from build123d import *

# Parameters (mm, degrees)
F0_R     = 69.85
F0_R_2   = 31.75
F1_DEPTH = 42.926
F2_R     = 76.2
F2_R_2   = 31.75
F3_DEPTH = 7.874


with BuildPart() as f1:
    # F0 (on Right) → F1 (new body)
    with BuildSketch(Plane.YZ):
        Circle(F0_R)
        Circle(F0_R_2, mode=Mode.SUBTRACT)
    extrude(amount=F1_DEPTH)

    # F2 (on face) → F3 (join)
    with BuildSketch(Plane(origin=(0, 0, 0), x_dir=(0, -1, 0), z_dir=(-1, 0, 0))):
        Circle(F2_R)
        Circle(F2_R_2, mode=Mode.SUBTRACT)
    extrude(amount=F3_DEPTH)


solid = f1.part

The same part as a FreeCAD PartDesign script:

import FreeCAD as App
import Part
import Sketcher
Q = App.Units.Quantity

doc = App.newDocument("Part")
body = doc.addObject("PartDesign::Body", "Body")

# Sketch on YZ plane
sketch1 = body.newObject("Sketcher::SketchObject", "Sketch")
sketch1.AttachmentSupport = (doc.getObject("YZ_Plane"), [""])
sketch1.MapMode = "FlatFace"
sketch1.addGeometry([
    Part.Circle(App.Vector(0, 0, 0), App.Vector(0, 0, 1), 70),
    Part.Circle(App.Vector(0, 0, 0), App.Vector(0, 0, 1), 32),
], False)
sketch1.addConstraint([
    Sketcher.Constraint("Coincident", 0, 3, -1, 1),
    Sketcher.Constraint("Coincident", 1, 3, -1, 1),
    Sketcher.Constraint("Diameter", 0, Q("5.5 in")),
    Sketcher.Constraint("Diameter", 1, Q("2.5 in")),
])
pad1 = body.newObject("PartDesign::Pad", "Pad")
pad1.Profile = sketch1
pad1.Length = Q("1.69 in")

# Sketch on YZ plane
sketch2 = body.newObject("Sketcher::SketchObject", "Sketch001")
sketch2.AttachmentSupport = (doc.getObject("YZ_Plane"), [""])
sketch2.MapMode = "FlatFace"
sketch2.addGeometry([
    Part.Circle(App.Vector(0, 0, 0), App.Vector(0, 0, 1), 76),
    Part.Circle(App.Vector(0, 0, 0), App.Vector(0, 0, 1), 32),
], False)
sketch2.addConstraint([
    Sketcher.Constraint("Coincident", 0, 3, -1, 1),
    Sketcher.Constraint("Coincident", 1, 3, -1, 1),
    Sketcher.Constraint("Diameter", 0, Q("6 in")),
    Sketcher.Constraint("Diameter", 1, Q("2.5 in")),
])
pad2 = body.newObject("PartDesign::Pad", "Pad001")
pad2.Profile = sketch2
pad2.Length = Q("0.31 in")
pad2.Reversed = True

doc.recompute()
